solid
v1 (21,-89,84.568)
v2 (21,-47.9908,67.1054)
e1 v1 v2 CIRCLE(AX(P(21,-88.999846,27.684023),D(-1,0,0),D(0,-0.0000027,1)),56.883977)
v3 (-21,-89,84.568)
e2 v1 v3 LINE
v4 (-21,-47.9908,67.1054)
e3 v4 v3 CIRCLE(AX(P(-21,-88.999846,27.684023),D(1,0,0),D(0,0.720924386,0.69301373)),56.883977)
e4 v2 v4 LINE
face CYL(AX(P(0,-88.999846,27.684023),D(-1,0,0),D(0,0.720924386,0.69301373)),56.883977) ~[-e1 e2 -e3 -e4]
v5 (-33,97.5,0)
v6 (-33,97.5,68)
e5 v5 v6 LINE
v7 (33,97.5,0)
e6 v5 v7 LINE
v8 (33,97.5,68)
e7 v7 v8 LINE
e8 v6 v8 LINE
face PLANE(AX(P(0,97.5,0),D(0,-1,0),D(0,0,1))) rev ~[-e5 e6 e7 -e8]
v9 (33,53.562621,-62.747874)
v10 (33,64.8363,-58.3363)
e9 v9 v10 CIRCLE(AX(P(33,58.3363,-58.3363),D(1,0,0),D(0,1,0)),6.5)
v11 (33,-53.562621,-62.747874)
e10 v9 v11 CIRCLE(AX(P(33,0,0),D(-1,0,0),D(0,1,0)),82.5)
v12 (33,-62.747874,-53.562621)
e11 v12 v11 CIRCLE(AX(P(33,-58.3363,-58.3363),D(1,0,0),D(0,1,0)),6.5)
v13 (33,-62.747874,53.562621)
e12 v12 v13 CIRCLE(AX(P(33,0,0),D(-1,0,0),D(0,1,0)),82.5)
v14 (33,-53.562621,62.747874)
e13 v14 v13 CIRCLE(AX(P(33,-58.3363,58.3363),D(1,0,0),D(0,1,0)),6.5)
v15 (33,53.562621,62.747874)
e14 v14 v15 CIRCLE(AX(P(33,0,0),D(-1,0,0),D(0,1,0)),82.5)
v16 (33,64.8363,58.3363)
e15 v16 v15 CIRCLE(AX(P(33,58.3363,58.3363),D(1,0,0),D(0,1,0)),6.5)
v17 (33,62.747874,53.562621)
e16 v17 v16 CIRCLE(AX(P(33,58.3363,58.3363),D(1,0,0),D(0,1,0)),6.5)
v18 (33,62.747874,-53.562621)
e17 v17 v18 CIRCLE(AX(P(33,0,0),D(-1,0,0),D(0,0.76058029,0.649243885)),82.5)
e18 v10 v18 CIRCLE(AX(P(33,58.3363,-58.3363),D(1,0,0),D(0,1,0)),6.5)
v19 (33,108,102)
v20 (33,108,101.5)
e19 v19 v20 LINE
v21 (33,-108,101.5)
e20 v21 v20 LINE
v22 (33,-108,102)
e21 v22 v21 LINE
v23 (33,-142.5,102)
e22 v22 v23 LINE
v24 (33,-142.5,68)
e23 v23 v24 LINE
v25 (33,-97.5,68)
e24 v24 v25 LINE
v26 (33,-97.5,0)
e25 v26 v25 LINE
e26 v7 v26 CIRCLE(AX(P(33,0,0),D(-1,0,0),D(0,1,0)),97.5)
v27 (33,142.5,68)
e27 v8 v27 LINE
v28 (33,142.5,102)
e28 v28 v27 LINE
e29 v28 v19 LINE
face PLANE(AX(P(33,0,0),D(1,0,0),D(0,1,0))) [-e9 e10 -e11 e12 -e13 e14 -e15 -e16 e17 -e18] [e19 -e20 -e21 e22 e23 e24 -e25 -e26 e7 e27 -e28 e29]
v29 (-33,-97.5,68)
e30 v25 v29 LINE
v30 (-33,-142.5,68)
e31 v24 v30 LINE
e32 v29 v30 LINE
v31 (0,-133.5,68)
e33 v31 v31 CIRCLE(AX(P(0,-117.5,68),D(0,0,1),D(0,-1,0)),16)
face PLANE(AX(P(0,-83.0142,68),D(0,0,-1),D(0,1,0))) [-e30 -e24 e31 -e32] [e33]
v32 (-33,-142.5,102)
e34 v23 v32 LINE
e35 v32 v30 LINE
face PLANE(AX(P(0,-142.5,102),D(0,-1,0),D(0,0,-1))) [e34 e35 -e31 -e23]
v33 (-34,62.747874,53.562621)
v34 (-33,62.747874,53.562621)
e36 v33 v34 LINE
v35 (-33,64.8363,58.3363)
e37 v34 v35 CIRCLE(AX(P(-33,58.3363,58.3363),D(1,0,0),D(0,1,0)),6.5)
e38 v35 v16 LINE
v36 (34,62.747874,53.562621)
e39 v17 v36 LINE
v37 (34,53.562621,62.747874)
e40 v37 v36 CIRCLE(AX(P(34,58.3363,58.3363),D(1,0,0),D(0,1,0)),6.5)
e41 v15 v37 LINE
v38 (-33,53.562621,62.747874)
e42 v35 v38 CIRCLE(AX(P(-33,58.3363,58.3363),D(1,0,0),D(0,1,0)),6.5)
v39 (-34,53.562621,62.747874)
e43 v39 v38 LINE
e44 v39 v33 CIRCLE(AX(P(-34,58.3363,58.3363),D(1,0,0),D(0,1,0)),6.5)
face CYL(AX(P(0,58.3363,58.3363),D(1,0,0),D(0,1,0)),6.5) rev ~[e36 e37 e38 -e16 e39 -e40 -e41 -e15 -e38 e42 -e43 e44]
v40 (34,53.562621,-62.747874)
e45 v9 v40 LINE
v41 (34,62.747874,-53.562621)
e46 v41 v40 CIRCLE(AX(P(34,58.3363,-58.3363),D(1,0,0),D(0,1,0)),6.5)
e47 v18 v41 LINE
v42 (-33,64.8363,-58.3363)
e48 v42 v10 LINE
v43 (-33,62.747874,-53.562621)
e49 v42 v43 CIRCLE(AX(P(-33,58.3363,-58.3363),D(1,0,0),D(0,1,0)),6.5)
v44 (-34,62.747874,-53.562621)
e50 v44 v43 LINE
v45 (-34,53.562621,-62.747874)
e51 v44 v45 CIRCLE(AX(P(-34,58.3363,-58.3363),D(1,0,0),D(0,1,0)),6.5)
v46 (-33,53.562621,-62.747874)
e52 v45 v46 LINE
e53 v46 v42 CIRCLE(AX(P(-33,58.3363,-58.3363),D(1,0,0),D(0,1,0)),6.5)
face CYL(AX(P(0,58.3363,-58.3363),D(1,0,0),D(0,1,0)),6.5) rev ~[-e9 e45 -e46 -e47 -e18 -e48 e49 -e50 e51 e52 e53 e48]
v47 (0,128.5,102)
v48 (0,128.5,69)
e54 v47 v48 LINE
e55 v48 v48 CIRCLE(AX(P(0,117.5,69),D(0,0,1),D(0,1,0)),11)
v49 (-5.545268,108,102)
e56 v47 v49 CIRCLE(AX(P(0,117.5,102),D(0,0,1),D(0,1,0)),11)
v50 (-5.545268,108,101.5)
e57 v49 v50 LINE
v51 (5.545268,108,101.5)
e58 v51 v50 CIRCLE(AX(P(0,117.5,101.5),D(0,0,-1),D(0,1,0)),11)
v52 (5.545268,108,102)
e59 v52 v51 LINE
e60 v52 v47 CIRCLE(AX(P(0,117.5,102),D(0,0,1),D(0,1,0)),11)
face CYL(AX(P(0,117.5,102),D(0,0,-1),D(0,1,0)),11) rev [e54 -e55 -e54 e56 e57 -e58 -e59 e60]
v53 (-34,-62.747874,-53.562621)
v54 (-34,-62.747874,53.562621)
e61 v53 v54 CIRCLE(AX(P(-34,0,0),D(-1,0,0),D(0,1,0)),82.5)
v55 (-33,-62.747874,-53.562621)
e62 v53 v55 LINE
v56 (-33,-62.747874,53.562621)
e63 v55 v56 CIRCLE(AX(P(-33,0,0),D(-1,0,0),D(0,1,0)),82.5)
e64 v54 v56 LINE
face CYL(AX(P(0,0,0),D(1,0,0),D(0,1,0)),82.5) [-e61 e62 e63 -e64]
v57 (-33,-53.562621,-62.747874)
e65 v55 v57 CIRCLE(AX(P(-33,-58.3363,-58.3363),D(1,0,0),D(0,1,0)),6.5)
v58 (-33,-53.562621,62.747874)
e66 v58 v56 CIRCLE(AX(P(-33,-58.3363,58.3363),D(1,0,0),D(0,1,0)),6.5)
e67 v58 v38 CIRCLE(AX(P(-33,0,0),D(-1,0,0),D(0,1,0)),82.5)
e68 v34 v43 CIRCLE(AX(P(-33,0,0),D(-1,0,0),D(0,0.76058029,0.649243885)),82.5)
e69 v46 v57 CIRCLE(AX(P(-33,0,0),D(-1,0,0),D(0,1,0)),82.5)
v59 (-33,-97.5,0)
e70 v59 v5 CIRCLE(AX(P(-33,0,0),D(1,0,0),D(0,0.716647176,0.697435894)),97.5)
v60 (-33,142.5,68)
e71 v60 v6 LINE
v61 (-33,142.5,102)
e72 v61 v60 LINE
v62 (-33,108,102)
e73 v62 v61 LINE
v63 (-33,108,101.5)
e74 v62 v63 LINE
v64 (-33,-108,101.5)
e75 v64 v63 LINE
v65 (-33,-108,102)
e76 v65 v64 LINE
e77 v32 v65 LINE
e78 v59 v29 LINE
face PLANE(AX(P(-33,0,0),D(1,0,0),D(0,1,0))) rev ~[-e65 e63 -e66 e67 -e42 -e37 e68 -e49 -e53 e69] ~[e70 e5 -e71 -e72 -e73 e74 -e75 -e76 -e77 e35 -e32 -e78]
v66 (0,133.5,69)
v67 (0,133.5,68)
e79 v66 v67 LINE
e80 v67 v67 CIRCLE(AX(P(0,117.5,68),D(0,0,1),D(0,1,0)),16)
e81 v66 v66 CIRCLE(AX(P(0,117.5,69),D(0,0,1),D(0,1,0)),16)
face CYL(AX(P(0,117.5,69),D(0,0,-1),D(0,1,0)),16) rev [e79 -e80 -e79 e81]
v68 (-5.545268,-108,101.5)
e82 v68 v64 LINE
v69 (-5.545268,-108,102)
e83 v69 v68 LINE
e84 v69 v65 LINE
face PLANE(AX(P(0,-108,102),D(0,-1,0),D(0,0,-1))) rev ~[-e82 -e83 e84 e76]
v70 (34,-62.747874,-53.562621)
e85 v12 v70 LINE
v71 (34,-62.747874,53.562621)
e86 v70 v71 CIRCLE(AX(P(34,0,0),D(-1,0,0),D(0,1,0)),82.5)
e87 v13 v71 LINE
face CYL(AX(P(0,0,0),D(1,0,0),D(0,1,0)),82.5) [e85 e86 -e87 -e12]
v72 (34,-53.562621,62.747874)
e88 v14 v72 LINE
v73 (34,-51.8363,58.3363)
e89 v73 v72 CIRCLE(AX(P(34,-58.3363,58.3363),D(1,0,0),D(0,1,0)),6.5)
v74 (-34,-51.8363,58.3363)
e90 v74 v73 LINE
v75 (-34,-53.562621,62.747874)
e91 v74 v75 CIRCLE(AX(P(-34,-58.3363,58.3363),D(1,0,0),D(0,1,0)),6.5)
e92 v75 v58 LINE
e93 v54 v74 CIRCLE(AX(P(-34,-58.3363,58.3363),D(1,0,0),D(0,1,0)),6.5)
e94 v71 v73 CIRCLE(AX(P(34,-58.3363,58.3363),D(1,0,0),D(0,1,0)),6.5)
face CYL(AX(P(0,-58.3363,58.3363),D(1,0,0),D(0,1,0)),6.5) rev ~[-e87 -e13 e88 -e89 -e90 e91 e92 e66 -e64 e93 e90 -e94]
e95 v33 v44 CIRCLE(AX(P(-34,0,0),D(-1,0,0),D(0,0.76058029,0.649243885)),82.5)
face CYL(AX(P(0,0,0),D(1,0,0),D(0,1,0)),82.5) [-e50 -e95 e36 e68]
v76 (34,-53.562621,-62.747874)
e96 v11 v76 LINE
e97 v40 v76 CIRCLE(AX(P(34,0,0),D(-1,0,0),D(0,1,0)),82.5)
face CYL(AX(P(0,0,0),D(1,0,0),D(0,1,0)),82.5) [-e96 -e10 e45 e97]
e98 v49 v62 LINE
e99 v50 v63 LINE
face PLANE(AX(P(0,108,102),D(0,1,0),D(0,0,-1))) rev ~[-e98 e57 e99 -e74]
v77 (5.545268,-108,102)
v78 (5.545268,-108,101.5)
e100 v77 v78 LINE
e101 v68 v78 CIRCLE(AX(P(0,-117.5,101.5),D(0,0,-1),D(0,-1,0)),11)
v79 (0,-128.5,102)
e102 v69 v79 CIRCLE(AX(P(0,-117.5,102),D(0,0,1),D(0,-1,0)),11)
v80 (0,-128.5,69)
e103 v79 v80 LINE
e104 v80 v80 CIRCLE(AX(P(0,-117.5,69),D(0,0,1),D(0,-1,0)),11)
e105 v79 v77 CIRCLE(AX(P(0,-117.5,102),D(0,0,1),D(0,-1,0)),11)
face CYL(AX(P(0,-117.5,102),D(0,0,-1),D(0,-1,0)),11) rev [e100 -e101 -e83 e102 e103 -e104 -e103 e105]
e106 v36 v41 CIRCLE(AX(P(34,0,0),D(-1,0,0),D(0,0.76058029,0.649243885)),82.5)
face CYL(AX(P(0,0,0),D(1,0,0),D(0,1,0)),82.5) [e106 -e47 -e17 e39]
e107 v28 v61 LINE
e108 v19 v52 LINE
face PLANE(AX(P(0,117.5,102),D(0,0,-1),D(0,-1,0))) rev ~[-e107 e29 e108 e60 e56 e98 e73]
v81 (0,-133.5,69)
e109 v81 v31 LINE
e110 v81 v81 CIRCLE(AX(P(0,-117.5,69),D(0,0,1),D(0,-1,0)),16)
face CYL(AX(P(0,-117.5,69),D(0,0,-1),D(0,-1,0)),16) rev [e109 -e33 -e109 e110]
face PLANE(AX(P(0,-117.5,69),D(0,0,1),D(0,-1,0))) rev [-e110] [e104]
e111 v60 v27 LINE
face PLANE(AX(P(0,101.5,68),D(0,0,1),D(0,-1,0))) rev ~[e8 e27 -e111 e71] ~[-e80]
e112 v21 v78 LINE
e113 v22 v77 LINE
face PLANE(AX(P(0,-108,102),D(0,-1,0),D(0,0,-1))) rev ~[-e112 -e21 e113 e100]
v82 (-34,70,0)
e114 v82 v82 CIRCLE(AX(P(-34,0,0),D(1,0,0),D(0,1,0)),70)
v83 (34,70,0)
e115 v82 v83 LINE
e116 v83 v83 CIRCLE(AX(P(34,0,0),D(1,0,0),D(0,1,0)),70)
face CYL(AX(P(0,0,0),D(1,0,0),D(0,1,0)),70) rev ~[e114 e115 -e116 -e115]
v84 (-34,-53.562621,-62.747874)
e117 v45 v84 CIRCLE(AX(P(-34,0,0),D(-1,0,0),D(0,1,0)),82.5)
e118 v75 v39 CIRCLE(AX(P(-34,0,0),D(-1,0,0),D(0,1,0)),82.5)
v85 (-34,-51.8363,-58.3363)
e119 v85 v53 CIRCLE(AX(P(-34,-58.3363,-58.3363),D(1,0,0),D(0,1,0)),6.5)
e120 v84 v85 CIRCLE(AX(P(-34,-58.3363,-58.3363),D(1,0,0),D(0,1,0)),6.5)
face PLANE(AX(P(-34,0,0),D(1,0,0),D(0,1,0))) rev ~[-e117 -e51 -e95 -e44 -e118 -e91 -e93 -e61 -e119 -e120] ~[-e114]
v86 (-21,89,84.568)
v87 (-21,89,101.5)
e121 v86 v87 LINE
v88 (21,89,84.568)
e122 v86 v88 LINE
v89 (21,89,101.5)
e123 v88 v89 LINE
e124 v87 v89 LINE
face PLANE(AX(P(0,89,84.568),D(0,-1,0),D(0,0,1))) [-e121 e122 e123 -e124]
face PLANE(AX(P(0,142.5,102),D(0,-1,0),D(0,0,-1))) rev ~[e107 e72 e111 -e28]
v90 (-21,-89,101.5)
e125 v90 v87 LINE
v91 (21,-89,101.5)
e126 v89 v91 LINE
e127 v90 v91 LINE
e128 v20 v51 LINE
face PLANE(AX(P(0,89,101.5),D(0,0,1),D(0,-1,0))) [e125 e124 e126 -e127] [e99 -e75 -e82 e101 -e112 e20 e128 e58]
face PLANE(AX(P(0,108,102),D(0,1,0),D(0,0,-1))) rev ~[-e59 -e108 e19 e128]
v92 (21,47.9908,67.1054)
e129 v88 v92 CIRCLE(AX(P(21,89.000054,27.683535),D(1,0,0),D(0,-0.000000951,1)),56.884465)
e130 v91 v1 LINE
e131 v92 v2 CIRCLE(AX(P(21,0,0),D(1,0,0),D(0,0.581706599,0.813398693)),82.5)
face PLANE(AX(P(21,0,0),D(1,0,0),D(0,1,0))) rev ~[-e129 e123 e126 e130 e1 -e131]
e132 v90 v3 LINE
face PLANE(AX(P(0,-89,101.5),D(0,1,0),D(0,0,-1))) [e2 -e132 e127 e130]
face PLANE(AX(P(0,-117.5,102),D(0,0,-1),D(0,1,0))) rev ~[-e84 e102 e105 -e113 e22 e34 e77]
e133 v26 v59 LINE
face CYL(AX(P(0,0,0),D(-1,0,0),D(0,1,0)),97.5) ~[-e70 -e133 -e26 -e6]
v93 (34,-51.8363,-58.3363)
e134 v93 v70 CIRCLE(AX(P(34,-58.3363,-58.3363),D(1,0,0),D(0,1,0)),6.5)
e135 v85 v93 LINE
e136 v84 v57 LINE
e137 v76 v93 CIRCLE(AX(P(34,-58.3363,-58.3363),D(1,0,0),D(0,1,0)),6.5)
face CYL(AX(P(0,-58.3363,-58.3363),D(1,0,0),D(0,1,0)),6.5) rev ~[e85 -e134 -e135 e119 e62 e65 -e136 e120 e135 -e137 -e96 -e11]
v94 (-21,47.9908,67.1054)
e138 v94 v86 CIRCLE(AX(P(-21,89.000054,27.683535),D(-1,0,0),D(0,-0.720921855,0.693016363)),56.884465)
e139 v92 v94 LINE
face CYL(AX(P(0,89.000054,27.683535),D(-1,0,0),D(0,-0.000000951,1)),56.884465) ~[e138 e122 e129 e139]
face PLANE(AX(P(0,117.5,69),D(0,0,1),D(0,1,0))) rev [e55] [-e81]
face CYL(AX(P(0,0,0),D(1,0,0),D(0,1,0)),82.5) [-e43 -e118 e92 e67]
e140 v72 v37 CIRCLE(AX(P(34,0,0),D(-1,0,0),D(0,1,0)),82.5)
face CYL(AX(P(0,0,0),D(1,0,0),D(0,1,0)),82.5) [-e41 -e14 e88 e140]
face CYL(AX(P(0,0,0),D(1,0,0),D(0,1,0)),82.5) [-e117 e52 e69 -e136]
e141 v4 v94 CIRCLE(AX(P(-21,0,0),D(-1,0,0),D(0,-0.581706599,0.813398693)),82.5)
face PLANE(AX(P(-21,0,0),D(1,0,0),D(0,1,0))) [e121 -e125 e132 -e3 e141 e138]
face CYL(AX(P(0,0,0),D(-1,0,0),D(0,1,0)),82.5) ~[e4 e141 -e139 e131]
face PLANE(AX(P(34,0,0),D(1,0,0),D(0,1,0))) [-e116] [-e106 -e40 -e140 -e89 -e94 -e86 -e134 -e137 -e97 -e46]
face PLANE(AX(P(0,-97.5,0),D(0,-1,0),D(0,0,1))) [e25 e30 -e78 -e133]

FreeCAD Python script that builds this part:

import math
import FreeCAD as App
import Part
import Sketcher
Q = App.Units.Quantity


def add_polygon(sketch, points):
    """Adds a closed chain of lines whose ends are joined by coincident constraints."""
    first, n = sketch.GeometryCount, len(points)
    for a, b in zip(points, points[1:] + points[:1]):
        sketch.addGeometry(Part.LineSegment(App.Vector(*a, 0), App.Vector(*b, 0)), False)
    for i in range(n):
        sketch.addConstraint(Sketcher.Constraint("Coincident", first + i, 2, first + (i + 1) % n, 1))

doc = App.newDocument("Part")
body = doc.addObject("PartDesign::Body", "Body")

sketch1 = body.newObject("Sketcher::SketchObject", "Sketch")
sketch1.AttachmentSupport = (doc.getObject("YZ_Plane"), [""])
sketch1.MapMode = "FlatFace"
sketch1.addGeometry(Part.Circle(App.Vector(0, 0, 0), App.Vector(0, 0, 1), 82), False)
sketch1.addGeometry(Part.Circle(App.Vector(0, 0, 0), App.Vector(0, 0, 1), 70), False)
sketch1.addConstraint(Sketcher.Constraint("Coincident", 0, 3, -1, 1))
sketch1.addConstraint(Sketcher.Constraint("Coincident", 1, 3, -1, 1))
sketch1.addConstraint(Sketcher.Constraint("Diameter", 0, Q("165 mm")))
sketch1.addConstraint(Sketcher.Constraint("Diameter", 1, Q("140 mm")))
pad1 = body.newObject("PartDesign::Pad", "Pad")
pad1.Profile = sketch1
pad1.Type = "TwoLengths"
pad1.Length = 34
pad1.Length2 = 34

sketch2 = body.newObject("Sketcher::SketchObject", "Sketch001")
sketch2.AttachmentSupport = (doc.getObject("YZ_Plane"), [""])
sketch2.MapMode = "FlatFace"
sketch2.addGeometry(Part.Circle(App.Vector(0, 0, 0), App.Vector(0, 0, 1), 82), False)
sketch2.addConstraint(Sketcher.Constraint("Coincident", 0, 3, -1, 1))
sketch2.addConstraint(Sketcher.Constraint("Diameter", 0, Q("165 mm")))
pad2 = body.newObject("PartDesign::Pad", "Pad001")
pad2.Profile = sketch2
pad2.Type = "TwoLengths"
pad2.Length = 34
pad2.Length2 = 34
doc.recompute()

polarpattern = body.newObject("PartDesign::PolarPattern", "PolarPattern")
polarpattern.Originals = [pad2]
polarpattern.Axis = (doc.getObject("X_Axis"), [""])
polarpattern.Angle = 360
polarpattern.Occurrences = 6
body.Tip = polarpattern

sketch3 = body.newObject("Sketcher::SketchObject", "Sketch002")
sketch3.AttachmentSupport = (doc.getObject("YZ_Plane"), [""])
sketch3.MapMode = "FlatFace"
sketch3.addGeometry(Part.LineSegment(App.Vector(98, 0, 0), App.Vector(98, 68, 0)), False)
sketch3.addGeometry(Part.LineSegment(App.Vector(98, 68, 0), App.Vector(70, 68, 0)), False)
sketch3.addGeometry(Part.ArcOfCircle(Part.Circle(App.Vector(0, 0, 0), App.Vector(0, 0, 1), 98), math.radians(44), math.radians(360)), False)
sketch3.addConstraint(Sketcher.Constraint("Coincident", 0, 2, 1, 1))
sketch3.addConstraint(Sketcher.Constraint("Coincident", 1, 2, 2, 1))
sketch3.addConstraint(Sketcher.Constraint("Tangent", 2, 2, 0, 1))
sketch3.addConstraint(Sketcher.Constraint("Vertical", 0))
sketch3.addConstraint(Sketcher.Constraint("Horizontal", 1))
sketch3.addConstraint(Sketcher.Constraint("Coincident", 2, 3, -1, 1))
sketch3.addConstraint(Sketcher.Constraint("Radius", 2, Q("97.5 mm")))
sketch3.addConstraint(Sketcher.Constraint("DistanceY", 0, 1, 0, 2, Q("68 mm")))
pad3 = body.newObject("PartDesign::Pad", "Pad002")
pad3.Profile = sketch3
pad3.Type = "TwoLengths"
pad3.Length = 33
pad3.Length2 = 33

sketch4 = body.newObject("Sketcher::SketchObject", "Sketch003")
sketch4.AttachmentSupport = (doc.getObject("YZ_Plane"), [""])
sketch4.MapMode = "FlatFace"
sketch4.addGeometry(Part.LineSegment(App.Vector(-98, 68, 0), App.Vector(-98, 0, 0)), False)
sketch4.addGeometry(Part.ArcOfCircle(Part.Circle(App.Vector(0, 0, 0), App.Vector(0, 0, 1), 98), math.radians(136), math.radians(180)), False)
sketch4.addGeometry(Part.LineSegment(App.Vector(-70, 68, 0), App.Vector(-98, 68, 0)), False)
sketch4.addConstraint(Sketcher.Constraint("Tangent", 0, 2, 1, 2))
sketch4.addConstraint(Sketcher.Constraint("Coincident", 1, 1, 2, 1))
sketch4.addConstraint(Sketcher.Constraint("Coincident", 2, 2, 0, 1))
sketch4.addConstraint(Sketcher.Constraint("Vertical", 0))
sketch4.addConstraint(Sketcher.Constraint("Horizontal", 2))
sketch4.addConstraint(Sketcher.Constraint("Coincident", 1, 3, -1, 1))
sketch4.addConstraint(Sketcher.Constraint("Radius", 1, Q("97.5 mm")))
sketch4.addConstraint(Sketcher.Constraint("DistanceY", 0, 2, 0, 1, Q("68 mm")))
pad4 = body.newObject("PartDesign::Pad", "Pad003")
pad4.Profile = sketch4
pad4.Type = "TwoLengths"
pad4.Length = 33
pad4.Length2 = 33

sketch5 = body.newObject("Sketcher::SketchObject", "Sketch004")
sketch5.AttachmentSupport = (doc.getObject("YZ_Plane"), [""])
sketch5.MapMode = "FlatFace"
sketch5.addGeometry(Part.LineSegment(App.Vector(69.9, 68, 0), App.Vector(142.5, 68, 0)), False)
sketch5.addGeometry(Part.LineSegment(App.Vector(142.5, 68, 0), App.Vector(142.5, 102, 0)), False)
sketch5.addGeometry(Part.LineSegment(App.Vector(142.5, 102, 0), App.Vector(128.5, 102, 0)), False)
sketch5.addGeometry(Part.LineSegment(App.Vector(128.5, 102, 0), App.Vector(128.5, 69, 0)), False)
sketch5.addGeometry(Part.LineSegment(App.Vector(128.5, 69, 0), App.Vector(106.5, 69, 0)), False)
sketch5.addGeometry(Part.LineSegment(App.Vector(106.5, 69, 0), App.Vector(106.5, 101.5, 0)), False)
sketch5.addGeometry(Part.LineSegment(App.Vector(106.5, 101.5, 0), App.Vector(-108, 101.5, 0)), False)
sketch5.addGeometry(Part.LineSegment(App.Vector(-108, 101.5, 0), App.Vector(-108, 102, 0)), False)
sketch5.addGeometry(Part.LineSegment(App.Vector(-108, 102, 0), App.Vector(-142.5, 102, 0)), False)
sketch5.addGeometry(Part.LineSegment(App.Vector(-142.5, 102, 0), App.Vector(-142.5, 68, 0)), False)
sketch5.addGeometry(Part.LineSegment(App.Vector(-142.5, 68, 0), App.Vector(-69.9, 68, 0)), False)
sketch5.addGeometry(Part.ArcOfCircle(Part.Circle(App.Vector(0, 0, 0), App.Vector(0, 0, 1), 97.5), math.radians(136), math.radians(404)), False)
sketch5.addGeometry(Part.Circle(App.Vector(58.3, 58.3, 0), App.Vector(0, 0, 1), 6.5), False)
sketch5.addGeometry(Part.Circle(App.Vector(58.3, -58.3, 0), App.Vector(0, 0, 1), 6.5), False)
sketch5.addGeometry(Part.Circle(App.Vector(-58.3, -58.3, 0), App.Vector(0, 0, 1), 6.5), False)
sketch5.addGeometry(Part.Circle(App.Vector(-58.3, 58.3, 0), App.Vector(0, 0, 1), 6.5), False)
sketch5.addConstraint(Sketcher.Constraint("Coincident", 0, 2, 1, 1))
sketch5.addConstraint(Sketcher.Constraint("Coincident", 1, 2, 2, 1))
sketch5.addConstraint(Sketcher.Constraint("Coincident", 2, 2, 3, 1))
sketch5.addConstraint(Sketcher.Constraint("Coincident", 3, 2, 4, 1))
sketch5.addConstraint(Sketcher.Constraint("Coincident", 4, 2, 5, 1))
sketch5.addConstraint(Sketcher.Constraint("Coincident", 5, 2, 6, 1))
sketch5.addConstraint(Sketcher.Constraint("Coincident", 6, 2, 7, 1))
sketch5.addConstraint(Sketcher.Constraint("Coincident", 7, 2, 8, 1))
sketch5.addConstraint(Sketcher.Constraint("Coincident", 8, 2, 9, 1))
sketch5.addConstraint(Sketcher.Constraint("Coincident", 9, 2, 10, 1))
sketch5.addConstraint(Sketcher.Constraint("Coincident", 10, 2, 11, 1))
sketch5.addConstraint(Sketcher.Constraint("Coincident", 11, 2, 0, 1))
sketch5.addConstraint(Sketcher.Constraint("Horizontal", 0))
sketch5.addConstraint(Sketcher.Constraint("Vertical", 1))
sketch5.addConstraint(Sketcher.Constraint("Horizontal", 2))
sketch5.addConstraint(Sketcher.Constraint("Vertical", 3))
sketch5.addConstraint(Sketcher.Constraint("Horizontal", 4))
sketch5.addConstraint(Sketcher.Constraint("Vertical", 5))
sketch5.addConstraint(Sketcher.Constraint("Horizontal", 6))
sketch5.addConstraint(Sketcher.Constraint("Vertical", 7))
sketch5.addConstraint(Sketcher.Constraint("Horizontal", 8))
sketch5.addConstraint(Sketcher.Constraint("Vertical", 9))
sketch5.addConstraint(Sketcher.Constraint("Horizontal", 10))
sketch5.addConstraint(Sketcher.Constraint("Coincident", 11, 3, -1, 1))
sketch5.addConstraint(Sketcher.Constraint("Equal", 12, 13))
sketch5.addConstraint(Sketcher.Constraint("Equal", 13, 14))
sketch5.addConstraint(Sketcher.Constraint("Equal", 14, 15))
sketch5.addConstraint(Sketcher.Constraint("Symmetric", 12, 3, 14, 3, -1, 1))
sketch5.addConstraint(Sketcher.Constraint("Symmetric", 13, 3, 15, 3, -1, 1))
sketch5.addConstraint(Sketcher.Constraint("Symmetric", 13, 3, 14, 3, -2))
sketch5.addConstraint(Sketcher.Constraint("Symmetric", 1, 2, 8, 2, -2))
sketch5.addConstraint(Sketcher.Constraint("Horizontal", 0, 2, 9, 2))
sketch5.addConstraint(Sketcher.Constraint("Diameter", 12, Q("13 mm")))
sketch5.addConstraint(Sketcher.Constraint("Radius", 11, Q("97.5 mm")))
sketch5.addConstraint(Sketcher.Constraint("DistanceY", 1, 1, 1, 2, Q("34 mm")))
sketch5.addConstraint(Sketcher.Constraint("DistanceY", 7, 1, 7, 2, Q("0.5 mm")))
sketch5.addConstraint(Sketcher.Constraint("DistanceY", 0, 2, 3, 2, Q("1 mm")))
sketch5.addConstraint(Sketcher.Constraint("DistanceX", 2, 2, 2, 1, Q("14 mm")))
sketch5.addConstraint(Sketcher.Constraint("DistanceX", 4, 2, 4, 1, Q("22 mm")))
sketch5.addConstraint(Sketcher.Constraint("DistanceX", 6, 2, 6, 1, Q("214.5 mm")))
sketch5.addConstraint(Sketcher.Constraint("DistanceX", 8, 2, 8, 1, Q("34.5 mm")))
sketch5.addConstraint(Sketcher.Constraint("DistanceY", -1, 1, 0, 2, Q("68 mm")))
sketch5.addConstraint(Sketcher.Constraint("DistanceX", -1, 1, 12, 3, Q("58.3363 mm")))
sketch5.addConstraint(Sketcher.Constraint("DistanceY", -1, 1, 12, 3, Q("58.3363 mm")))
pad5 = body.newObject("PartDesign::Pad", "Pad004")
pad5.Profile = sketch5
pad5.Type = "TwoLengths"
pad5.Length = 33
pad5.Length2 = 33

sketch6 = body.newObject("Sketcher::SketchObject", "Sketch005")
sketch6.AttachmentSupport = (doc.getObject("YZ_Plane"), [""])
sketch6.MapMode = "FlatFace"
add_polygon(sketch6, [(108, 101.5), (106.5, 101.5), (106.5, 69), (117.5, 69), (117.5, 68), (142.5, 68), (142.5, 102), (108, 102)])
sketch6.addConstraint(Sketcher.Constraint("Horizontal", 0))
sketch6.addConstraint(Sketcher.Constraint("Vertical", 1))
sketch6.addConstraint(Sketcher.Constraint("Horizontal", 2))
sketch6.addConstraint(Sketcher.Constraint("Vertical", 3))
sketch6.addConstraint(Sketcher.Constraint("Horizontal", 4))
sketch6.addConstraint(Sketcher.Constraint("Vertical", 5))
sketch6.addConstraint(Sketcher.Constraint("Horizontal", 6))
sketch6.addConstraint(Sketcher.Constraint("Vertical", 7))
sketch6.addConstraint(Sketcher.Constraint("DistanceX", 2, 1, 2, 2, Q("11 mm")))
sketch6.addConstraint(Sketcher.Constraint("DistanceY", 3, 2, 3, 1, Q("1 mm")))
sketch6.addConstraint(Sketcher.Constraint("DistanceY", 5, 1, 5, 2, Q("34 mm")))
sketch6.addConstraint(Sketcher.Constraint("DistanceY", 7, 2, 7, 1, Q("0.5 mm")))
sketch6.addConstraint(Sketcher.Constraint("DistanceX", 4, 1, 4, 2, Q("25 mm")))
sketch6.addConstraint(Sketcher.Constraint("DistanceX", 0, 2, 0, 1, Q("1.5 mm")))
sketch6.addConstraint(Sketcher.Constraint("DistanceY", -1, 1, 1, 2, Q("69 mm")))
sketch6.addConstraint(Sketcher.Constraint("DistanceX", -1, 1, 6, 2, Q("108 mm")))
pad6 = body.newObject("PartDesign::Pad", "Pad005")
pad6.Profile = sketch6
pad6.Type = "TwoLengths"
pad6.Length = 33
pad6.Length2 = 33

sketch7 = body.newObject("Sketcher::SketchObject", "Sketch006")
sketch7.AttachmentSupport = (doc.getObject("YZ_Plane"), [""])
sketch7.MapMode = "FlatFace"
add_polygon(sketch7, [(-133.5, 68), (-117.5, 68), (-117.5, 102), (-128.5, 102), (-128.5, 69), (-133.5, 69)])
sketch7.addGeometry(Part.LineSegment(App.Vector(-117.5, 68, 0), App.Vector(-117.5, 102, 0)), True)
sketch7.addConstraint(Sketcher.Constraint("Horizontal", 0))
sketch7.addConstraint(Sketcher.Constraint("Vertical", 1))
sketch7.addConstraint(Sketcher.Constraint("Horizontal", 2))
sketch7.addConstraint(Sketcher.Constraint("Vertical", 3))
sketch7.addConstraint(Sketcher.Constraint("Horizontal", 4))
sketch7.addConstraint(Sketcher.Constraint("Vertical", 5))
sketch7.addConstraint(Sketcher.Constraint("Vertical", 6))
sketch7.addConstraint(Sketcher.Constraint("Coincident", 6, 1, 0, 2))
sketch7.addConstraint(Sketcher.Constraint("Horizontal", 2, 2, 6, 2))
sketch7.addConstraint(Sketcher.Constraint("DistanceX", 0, 1, 0, 2, Q("16 mm")))
sketch7.addConstraint(Sketcher.Constraint("DistanceX", 2, 2, 2, 1, Q("11 mm")))
sketch7.addConstraint(Sketcher.Constraint("DistanceY", 1, 1, 1, 2, Q("34 mm")))
sketch7.addConstraint(Sketcher.Constraint("DistanceY", 5, 2, 5, 1, Q("1 mm")))
sketch7.addConstraint(Sketcher.Constraint("DistanceY", -1, 1, 0, 2, Q("68 mm")))
sketch7.addConstraint(Sketcher.Constraint("DistanceX", 0, 2, -1, 1, Q("117.5 mm")))
groove = body.newObject("PartDesign::Groove", "Groove")
groove.Profile = sketch7
groove.ReferenceAxis = (sketch7, ["Axis0"])
groove.Angle = 360

sketch8 = body.newObject("Sketcher::SketchObject", "Sketch007")
sketch8.AttachmentSupport = (doc.getObject("YZ_Plane"), [""])
sketch8.MapMode = "FlatFace"
add_polygon(sketch8, [(83, 68), (133.5, 68), (133.5, 69), (106.5, 69), (106.5, 101.5), (89, 101.5), (89, 84.6), (83, 84.6)])
sketch8.addConstraint(Sketcher.Constraint("Horizontal", 0))
sketch8.addConstraint(Sketcher.Constraint("Vertical", 1))
sketch8.addConstraint(Sketcher.Constraint("Horizontal", 2))
sketch8.addConstraint(Sketcher.Constraint("Vertical", 3))
sketch8.addConstraint(Sketcher.Constraint("Horizontal", 4))
sketch8.addConstraint(Sketcher.Constraint("Vertical", 5))
sketch8.addConstraint(Sketcher.Constraint("Horizontal", 6))
sketch8.addConstraint(Sketcher.Constraint("Vertical", 7))
sketch8.addConstraint(Sketcher.Constraint("DistanceY", 1, 1, 1, 2, Q("1 mm")))
sketch8.addConstraint(Sketcher.Constraint("DistanceX", 2, 2, 2, 1, Q("27 mm")))
sketch8.addConstraint(Sketcher.Constraint("DistanceX", 4, 2, 4, 1, Q("17.5 mm")))
sketch8.addConstraint(Sketcher.Constraint("DistanceY", 3, 1, 3, 2, Q("32.5 mm")))
sketch8.addConstraint(Sketcher.Constraint("DistanceY", -1, 1, 0, 2, Q("68 mm")))
sketch8.addConstraint(Sketcher.Constraint("DistanceX", -1, 1, 4, 2, Q("89 mm")))
sketch8.addConstraint(Sketcher.Constraint("DistanceY", 5, 2, 5, 1, Q("16.932 mm")))
sketch8.addConstraint(Sketcher.Constraint("DistanceX", 0, 1, 0, 2, Q("50.4858 mm")))
pad7 = body.newObject("PartDesign::Pad", "Pad006")
pad7.Profile = sketch8
pad7.Type = "TwoLengths"
pad7.Length = 33
pad7.Length2 = 33

sketch9 = body.newObject("Sketcher::SketchObject", "Sketch008")
sketch9.AttachmentSupport = (doc.getObject("YZ_Plane"), [""])
sketch9.MapMode = "FlatFace"
add_polygon(sketch9, [(133.5, 69), (128.5, 69), (128.5, 102), (117.5, 102), (117.5, 68), (133.5, 68)])
sketch9.addGeometry(Part.LineSegment(App.Vector(117.5, 68, 0), App.Vector(117.5, 102, 0)), True)
sketch9.addConstraint(Sketcher.Constraint("Horizontal", 0))
sketch9.addConstraint(Sketcher.Constraint("Vertical", 1))
sketch9.addConstraint(Sketcher.Constraint("Horizontal", 2))
sketch9.addConstraint(Sketcher.Constraint("Vertical", 3))
sketch9.addConstraint(Sketcher.Constraint("Horizontal", 4))
sketch9.addConstraint(Sketcher.Constraint("Vertical", 5))
sketch9.addConstraint(Sketcher.Constraint("Vertical", 6))
sketch9.addConstraint(Sketcher.Constraint("Coincident", 6, 1, 3, 2))
sketch9.addConstraint(Sketcher.Constraint("Horizontal", 1, 2, 6, 2))
sketch9.addConstraint(Sketcher.Constraint("DistanceX", 2, 2, 2, 1, Q("11 mm")))
sketch9.addConstraint(Sketcher.Constraint("DistanceX", 4, 1, 4, 2, Q("16 mm")))
sketch9.addConstraint(Sketcher.Constraint("DistanceY", 3, 2, 3, 1, Q("34 mm")))
sketch9.addConstraint(Sketcher.Constraint("DistanceY", 5, 1, 5, 2, Q("1 mm")))
sketch9.addConstraint(Sketcher.Constraint("DistanceY", -1, 1, 0, 2, Q("69 mm")))
sketch9.addConstraint(Sketcher.Constraint("DistanceX", -1, 1, 0, 2, Q("128.5 mm")))
groove2 = body.newObject("PartDesign::Groove", "Groove001")
groove2.Profile = sketch9
groove2.ReferenceAxis = (sketch9, ["Axis0"])
groove2.Angle = 360

sketch10 = body.newObject("Sketcher::SketchObject", "Sketch009")
sketch10.AttachmentSupport = (doc.getObject("YZ_Plane"), [""])
sketch10.MapMode = "FlatFace"
sketch10.addGeometry(Part.ArcOfCircle(Part.Circle(App.Vector(89, 28, 0), App.Vector(0, 0, 1), 57), math.radians(90), math.radians(136)), False)
sketch10.addGeometry(Part.LineSegment(App.Vector(89, 85, 0), App.Vector(89, 102, 0)), False)
sketch10.addGeometry(Part.LineSegment(App.Vector(89, 102, 0), App.Vector(-89, 102, 0)), False)
sketch10.addGeometry(Part.LineSegment(App.Vector(-89, 102, 0), App.Vector(-89, 85, 0)), False)
sketch10.addGeometry(Part.ArcOfCircle(Part.Circle(App.Vector(-89, 28, 0), App.Vector(0, 0, 1), 57), math.radians(44), math.radians(90)), False)
sketch10.addGeometry(Part.ArcOfCircle(Part.Circle(App.Vector(0, 0, 0), App.Vector(0, 0, 1), 82), math.radians(54), math.radians(126)), False)
sketch10.addConstraint(Sketcher.Constraint("Coincident", 0, 1, 1, 1))
sketch10.addConstraint(Sketcher.Constraint("Coincident", 1, 2, 2, 1))
sketch10.addConstraint(Sketcher.Constraint("Coincident", 2, 2, 3, 1))
sketch10.addConstraint(Sketcher.Constraint("Coincident", 3, 2, 4, 2))
sketch10.addConstraint(Sketcher.Constraint("Coincident", 4, 1, 5, 2))
sketch10.addConstraint(Sketcher.Constraint("Coincident", 5, 1, 0, 2))
sketch10.addConstraint(Sketcher.Constraint("Vertical", 1))
sketch10.addConstraint(Sketcher.Constraint("Horizontal", 2))
sketch10.addConstraint(Sketcher.Constraint("Vertical", 3))
sketch10.addConstraint(Sketcher.Constraint("Coincident", 5, 3, -1, 1))
sketch10.addConstraint(Sketcher.Constraint("Equal", 0, 4))
sketch10.addConstraint(Sketcher.Constraint("Symmetric", 0, 3, 4, 3, -2))
sketch10.addConstraint(Sketcher.Constraint("Vertical", 4, 3, 2, 2))
sketch10.addConstraint(Sketcher.Constraint("Radius", 5, Q("82.5 mm")))
sketch10.addConstraint(Sketcher.Constraint("DistanceX", 2, 2, 2, 1, Q("178 mm")))
sketch10.addConstraint(Sketcher.Constraint("DistanceX", -1, 1, 0, 3, Q("89 mm")))
sketch10.addConstraint(Sketcher.Constraint("DistanceY", -1, 1, 1, 2, Q("101.5 mm")))
sketch10.addConstraint(Sketcher.Constraint("Radius", 0, Q("56.8842 mm")))
sketch10.addConstraint(Sketcher.Constraint("DistanceY", 1, 1, 1, 2, Q("16.932 mm")))
pocket1 = body.newObject("PartDesign::Pocket", "Pocket")
pocket1.Profile = sketch10
pocket1.Type = "TwoLengths"
pocket1.Length = 21
pocket1.Length2 = 21
pocket1.Reversed = True

sketch11 = body.newObject("Sketcher::SketchObject", "Sketch010")
sketch11.AttachmentSupport = (doc.getObject("YZ_Plane"), [""])
sketch11.MapMode = "FlatFace"
sketch11.addGeometry(Part.Circle(App.Vector(58, -58, 0), App.Vector(0, 0, 1), 6), False)
sketch11.addGeometry(Part.Circle(App.Vector(-58, -58, 0), App.Vector(0, 0, 1), 6), False)
sketch11.addGeometry(Part.Circle(App.Vector(58, 58, 0), App.Vector(0, 0, 1), 6), False)
sketch11.addGeometry(Part.Circle(App.Vector(-58, 58, 0), App.Vector(0, 0, 1), 6), False)
sketch11.addConstraint(Sketcher.Constraint("Equal", 0, 1))
sketch11.addConstraint(Sketcher.Constraint("Equal", 1, 2))
sketch11.addConstraint(Sketcher.Constraint("Equal", 2, 3))
sketch11.addConstraint(Sketcher.Constraint("Symmetric", 1, 3, 2, 3, -1, 1))
sketch11.addConstraint(Sketcher.Constraint("Symmetric", 0, 3, 3, 3, -1, 1))
sketch11.addConstraint(Sketcher.Constraint("Symmetric", 0, 3, 1, 3, -2))
sketch11.addConstraint(Sketcher.Constraint("Diameter", 0, Q("13 mm")))
sketch11.addConstraint(Sketcher.Constraint("DistanceX", -1, 1, 0, 3, Q("58.3363 mm")))
sketch11.addConstraint(Sketcher.Constraint("DistanceY", 0, 3, -1, 1, Q("58.3363 mm")))
pocket2 = body.newObject("PartDesign::Pocket", "Pocket001")
pocket2.Profile = sketch11
pocket2.Type = "ThroughAll"
pocket2.Midplane = True

sketch12 = body.newObject("Sketcher::SketchObject", "Sketch011")
sketch12.AttachmentSupport = (doc.getObject("YZ_Plane"), [""])
sketch12.MapMode = "FlatFace"
sketch12.addGeometry(Part.Circle(App.Vector(0, 0, 0), App.Vector(0, 0, 1), 70), False)
sketch12.addConstraint(Sketcher.Constraint("Coincident", 0, 3, -1, 1))
sketch12.addConstraint(Sketcher.Constraint("Diameter", 0, Q("140 mm")))
pocket3 = body.newObject("PartDesign::Pocket", "Pocket002")
pocket3.Profile = sketch12
pocket3.Type = "ThroughAll"
pocket3.Midplane = True

doc.recompute()
